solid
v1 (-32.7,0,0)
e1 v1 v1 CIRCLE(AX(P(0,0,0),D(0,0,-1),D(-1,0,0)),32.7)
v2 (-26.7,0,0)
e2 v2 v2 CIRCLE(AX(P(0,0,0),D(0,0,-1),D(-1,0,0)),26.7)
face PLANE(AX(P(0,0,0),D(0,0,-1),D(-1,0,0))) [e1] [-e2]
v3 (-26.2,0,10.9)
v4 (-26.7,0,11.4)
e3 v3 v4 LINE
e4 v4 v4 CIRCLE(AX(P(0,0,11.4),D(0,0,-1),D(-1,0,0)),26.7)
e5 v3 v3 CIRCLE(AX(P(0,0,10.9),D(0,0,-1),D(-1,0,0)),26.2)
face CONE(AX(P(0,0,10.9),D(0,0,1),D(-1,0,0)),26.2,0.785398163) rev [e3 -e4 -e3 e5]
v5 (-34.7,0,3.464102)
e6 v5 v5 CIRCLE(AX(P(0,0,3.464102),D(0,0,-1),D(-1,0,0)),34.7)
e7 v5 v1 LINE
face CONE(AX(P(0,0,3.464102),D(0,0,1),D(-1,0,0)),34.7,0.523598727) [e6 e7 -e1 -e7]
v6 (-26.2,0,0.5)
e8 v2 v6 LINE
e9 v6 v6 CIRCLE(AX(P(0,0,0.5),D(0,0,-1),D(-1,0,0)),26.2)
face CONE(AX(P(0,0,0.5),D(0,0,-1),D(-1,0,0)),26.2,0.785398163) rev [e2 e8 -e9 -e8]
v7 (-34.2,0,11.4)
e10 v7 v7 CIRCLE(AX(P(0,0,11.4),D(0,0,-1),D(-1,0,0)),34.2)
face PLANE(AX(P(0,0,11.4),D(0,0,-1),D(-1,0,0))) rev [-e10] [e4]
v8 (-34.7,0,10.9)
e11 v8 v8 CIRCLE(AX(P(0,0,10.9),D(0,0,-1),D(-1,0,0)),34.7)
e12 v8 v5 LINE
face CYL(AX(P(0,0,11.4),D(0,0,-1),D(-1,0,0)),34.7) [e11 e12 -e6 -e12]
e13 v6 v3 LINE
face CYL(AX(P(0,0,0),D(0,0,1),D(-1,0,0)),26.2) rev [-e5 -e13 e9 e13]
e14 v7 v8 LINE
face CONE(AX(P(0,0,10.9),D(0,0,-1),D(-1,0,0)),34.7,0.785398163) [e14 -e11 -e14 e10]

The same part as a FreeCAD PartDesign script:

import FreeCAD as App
import Part
import Sketcher

V = App.Vector
Q = App.Units.Quantity


def edges_at(feature, points):
    """Names of the edges that pass closest to the given points."""
    edges = feature.Shape.Edges
    near = lambda p: min(range(len(edges)), key=lambda i: edges[i].distToShape(Part.Vertex(*p))[0])
    return sorted({f"Edge{near(p) + 1}" for p in points})


def add_polygon(sketch, points):
    """Adds a closed chain of lines whose ends are joined by coincident constraints."""
    first, n = sketch.GeometryCount, len(points)
    for a, b in zip(points, points[1:] + points[:1]):
        sketch.addGeometry(Part.LineSegment(App.Vector(*a, 0), App.Vector(*b, 0)), False)
    for i in range(n):
        sketch.addConstraint(Sketcher.Constraint("Coincident", first + i, 2, first + (i + 1) % n, 1))

doc = App.newDocument("Part")
params = doc.addObject("Spreadsheet::Sheet", "Params")
for row, (alias, value) in enumerate([
    ("sketch1_length", "4 mm"),
    ("sketch1_width", "6.5 mm"),
    ("sketch1_height", "11.4 mm"),
    ("revolution_angle", "360 deg"),
    ("chamfer_size", "0.5 mm"),
], start=1):
    params.set(f"A{row}", alias)
    params.set(f"B{row}", "=" + value)
    params.setAlias(f"B{row}", alias)

body = doc.addObject("PartDesign::Body", "Body")

# Sketch on XZ plane
sketch1 = body.newObject("Sketcher::SketchObject", "Sketch")
sketch1.AttachmentSupport = (doc.getObject("XZ_Plane"), [""])
sketch1.MapMode = "FlatFace"
add_polygon(sketch1, [(-32.7, 0), (-26.2, 0), (-26.2, 11.4), (-34.7, 11.4), (-34.7, 3.5)])  # lines 0-4
sketch1.addConstraint([
    Sketcher.Constraint("Horizontal", 0),
    Sketcher.Constraint("Vertical", 1),
    Sketcher.Constraint("Horizontal", 2),
    Sketcher.Constraint("Vertical", 3),
    Sketcher.Constraint("PointOnObject", 0, 2, -1),
    Sketcher.Constraint("Angle", 4, Q("-60.000003 deg")),
    Sketcher.Constraint("Distance", 4, 4.0),
    Sketcher.Constraint("DistanceX", 0, 1, 0, 2, 6.5),
    Sketcher.Constraint("DistanceY", 1, 1, 1, 2, 11.4),
    Sketcher.Constraint("DistanceX", 0, 2, -1, 1, 26.2),
])
sketch1.setExpression("Constraints[11]", "Params.sketch1_length")
sketch1.setExpression("Constraints[12]", "Params.sketch1_width")
sketch1.setExpression("Constraints[13]", "Params.sketch1_height")
revolution = body.newObject("PartDesign::Revolution", "Revolution")
revolution.Profile = sketch1
revolution.ReferenceAxis = (sketch1, ["V_Axis"])
revolution.setExpression("Angle", "Params.revolution_angle")
doc.recompute()

chamfer = body.newObject("PartDesign::Chamfer", "Chamfer")
chamfer.Base = (revolution, edges_at(revolution, [(26.2, 0, 11.4), (34.7, 0, 11.4), (26.2, 0, 0)]))
chamfer.setExpression("Size", "Params.chamfer_size")

doc.recompute()
